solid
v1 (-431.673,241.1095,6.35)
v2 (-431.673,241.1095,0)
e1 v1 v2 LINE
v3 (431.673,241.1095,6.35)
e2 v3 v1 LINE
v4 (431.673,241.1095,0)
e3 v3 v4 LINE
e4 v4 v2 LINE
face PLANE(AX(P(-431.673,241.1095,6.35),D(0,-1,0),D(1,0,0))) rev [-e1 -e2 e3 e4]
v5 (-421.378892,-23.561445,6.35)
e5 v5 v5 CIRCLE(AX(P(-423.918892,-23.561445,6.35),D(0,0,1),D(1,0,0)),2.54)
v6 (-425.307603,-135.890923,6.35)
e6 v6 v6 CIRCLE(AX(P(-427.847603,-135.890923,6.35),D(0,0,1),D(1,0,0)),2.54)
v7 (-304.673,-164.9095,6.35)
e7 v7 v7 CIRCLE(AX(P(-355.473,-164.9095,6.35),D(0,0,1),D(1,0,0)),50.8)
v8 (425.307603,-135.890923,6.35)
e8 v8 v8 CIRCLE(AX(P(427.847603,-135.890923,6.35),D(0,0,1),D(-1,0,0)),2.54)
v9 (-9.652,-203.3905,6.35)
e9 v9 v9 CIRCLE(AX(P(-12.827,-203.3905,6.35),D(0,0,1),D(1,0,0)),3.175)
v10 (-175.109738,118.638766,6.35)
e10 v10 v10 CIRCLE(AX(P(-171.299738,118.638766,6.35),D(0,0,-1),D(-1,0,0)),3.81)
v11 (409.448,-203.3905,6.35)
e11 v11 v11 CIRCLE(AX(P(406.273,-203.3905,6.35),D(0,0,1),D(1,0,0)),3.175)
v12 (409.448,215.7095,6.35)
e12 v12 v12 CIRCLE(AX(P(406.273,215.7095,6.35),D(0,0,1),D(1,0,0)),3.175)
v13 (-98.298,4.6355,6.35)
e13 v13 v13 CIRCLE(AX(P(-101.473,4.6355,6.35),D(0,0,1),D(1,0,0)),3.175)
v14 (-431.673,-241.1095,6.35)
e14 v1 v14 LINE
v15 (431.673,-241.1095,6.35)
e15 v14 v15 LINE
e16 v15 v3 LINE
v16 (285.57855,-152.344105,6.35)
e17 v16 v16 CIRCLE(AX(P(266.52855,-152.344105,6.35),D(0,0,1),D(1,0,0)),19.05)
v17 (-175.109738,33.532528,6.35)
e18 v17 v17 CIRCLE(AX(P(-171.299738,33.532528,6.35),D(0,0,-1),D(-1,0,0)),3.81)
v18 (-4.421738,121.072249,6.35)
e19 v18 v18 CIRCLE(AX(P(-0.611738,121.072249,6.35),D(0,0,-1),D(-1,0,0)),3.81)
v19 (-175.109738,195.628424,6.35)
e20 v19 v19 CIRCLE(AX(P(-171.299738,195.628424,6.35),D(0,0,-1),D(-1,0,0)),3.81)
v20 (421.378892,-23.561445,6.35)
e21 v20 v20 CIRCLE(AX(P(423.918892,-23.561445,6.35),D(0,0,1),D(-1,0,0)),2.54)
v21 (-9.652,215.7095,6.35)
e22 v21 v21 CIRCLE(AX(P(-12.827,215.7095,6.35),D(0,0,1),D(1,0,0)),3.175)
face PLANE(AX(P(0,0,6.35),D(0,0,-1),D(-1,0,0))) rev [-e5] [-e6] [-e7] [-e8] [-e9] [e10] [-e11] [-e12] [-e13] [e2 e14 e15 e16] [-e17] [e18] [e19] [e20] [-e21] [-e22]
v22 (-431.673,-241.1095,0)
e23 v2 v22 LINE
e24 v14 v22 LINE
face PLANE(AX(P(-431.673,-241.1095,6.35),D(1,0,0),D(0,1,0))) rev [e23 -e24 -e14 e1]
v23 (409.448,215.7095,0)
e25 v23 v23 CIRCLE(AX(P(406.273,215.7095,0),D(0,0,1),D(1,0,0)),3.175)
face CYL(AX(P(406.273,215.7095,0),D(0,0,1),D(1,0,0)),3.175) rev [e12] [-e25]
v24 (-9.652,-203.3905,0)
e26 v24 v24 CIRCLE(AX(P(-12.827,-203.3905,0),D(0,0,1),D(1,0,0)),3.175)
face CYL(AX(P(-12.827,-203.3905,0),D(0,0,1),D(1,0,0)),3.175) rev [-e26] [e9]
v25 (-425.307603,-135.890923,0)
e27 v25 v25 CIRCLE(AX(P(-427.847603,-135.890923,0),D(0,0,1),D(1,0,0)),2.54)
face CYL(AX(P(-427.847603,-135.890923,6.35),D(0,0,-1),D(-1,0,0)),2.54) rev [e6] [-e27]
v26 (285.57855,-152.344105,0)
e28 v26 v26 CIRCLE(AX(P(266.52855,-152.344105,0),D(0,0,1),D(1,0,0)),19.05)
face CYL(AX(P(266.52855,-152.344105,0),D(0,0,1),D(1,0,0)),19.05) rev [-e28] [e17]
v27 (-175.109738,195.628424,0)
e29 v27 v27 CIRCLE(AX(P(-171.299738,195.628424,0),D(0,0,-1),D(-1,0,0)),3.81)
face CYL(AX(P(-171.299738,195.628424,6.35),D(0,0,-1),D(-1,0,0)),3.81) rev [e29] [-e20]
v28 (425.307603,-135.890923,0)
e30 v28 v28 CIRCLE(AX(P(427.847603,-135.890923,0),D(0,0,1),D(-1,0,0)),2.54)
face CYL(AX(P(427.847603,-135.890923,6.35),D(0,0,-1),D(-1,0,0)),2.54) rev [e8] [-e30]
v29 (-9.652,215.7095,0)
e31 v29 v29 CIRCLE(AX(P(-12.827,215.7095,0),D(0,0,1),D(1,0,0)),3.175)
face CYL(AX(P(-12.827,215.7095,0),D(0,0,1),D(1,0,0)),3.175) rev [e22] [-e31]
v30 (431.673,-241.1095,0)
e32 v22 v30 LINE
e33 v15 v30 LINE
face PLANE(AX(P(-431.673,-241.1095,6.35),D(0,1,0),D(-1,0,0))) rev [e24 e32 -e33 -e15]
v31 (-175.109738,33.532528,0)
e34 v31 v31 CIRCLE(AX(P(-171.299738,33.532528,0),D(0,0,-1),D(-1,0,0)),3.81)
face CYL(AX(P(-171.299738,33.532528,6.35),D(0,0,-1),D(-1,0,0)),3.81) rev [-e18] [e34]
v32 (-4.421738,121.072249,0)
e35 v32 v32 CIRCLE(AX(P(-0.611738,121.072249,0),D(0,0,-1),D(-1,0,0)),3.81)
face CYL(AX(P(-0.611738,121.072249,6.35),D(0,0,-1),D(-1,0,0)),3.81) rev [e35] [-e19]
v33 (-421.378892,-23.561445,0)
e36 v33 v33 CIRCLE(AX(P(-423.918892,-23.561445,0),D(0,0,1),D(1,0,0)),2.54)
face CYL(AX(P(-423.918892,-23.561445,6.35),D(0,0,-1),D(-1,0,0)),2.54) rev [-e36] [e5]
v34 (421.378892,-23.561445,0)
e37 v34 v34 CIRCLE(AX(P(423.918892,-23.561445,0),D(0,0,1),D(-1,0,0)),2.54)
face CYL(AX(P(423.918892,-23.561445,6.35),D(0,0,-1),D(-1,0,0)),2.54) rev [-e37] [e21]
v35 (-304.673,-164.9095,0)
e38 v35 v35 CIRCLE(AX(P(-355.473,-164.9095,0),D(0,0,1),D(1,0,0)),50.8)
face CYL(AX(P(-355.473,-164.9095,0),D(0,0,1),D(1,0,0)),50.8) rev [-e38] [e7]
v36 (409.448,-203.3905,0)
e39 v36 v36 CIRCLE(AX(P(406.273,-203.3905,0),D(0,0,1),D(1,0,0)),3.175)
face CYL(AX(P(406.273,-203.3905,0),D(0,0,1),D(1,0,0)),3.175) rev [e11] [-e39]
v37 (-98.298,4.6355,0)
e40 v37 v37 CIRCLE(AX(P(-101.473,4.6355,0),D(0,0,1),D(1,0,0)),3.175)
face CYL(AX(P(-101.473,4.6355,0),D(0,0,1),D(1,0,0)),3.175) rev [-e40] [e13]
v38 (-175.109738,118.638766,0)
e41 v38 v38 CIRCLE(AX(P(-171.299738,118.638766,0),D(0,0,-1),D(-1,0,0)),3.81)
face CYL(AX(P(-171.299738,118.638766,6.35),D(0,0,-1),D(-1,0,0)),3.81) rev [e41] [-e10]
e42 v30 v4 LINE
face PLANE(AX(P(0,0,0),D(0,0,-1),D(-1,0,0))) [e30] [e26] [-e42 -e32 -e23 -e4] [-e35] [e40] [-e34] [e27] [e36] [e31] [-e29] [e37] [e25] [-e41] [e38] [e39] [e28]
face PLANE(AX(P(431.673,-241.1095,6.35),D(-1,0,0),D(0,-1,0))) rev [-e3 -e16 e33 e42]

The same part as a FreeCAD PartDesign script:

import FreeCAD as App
import Part
import Sketcher
from FreeCAD import Vector
Q = App.Units.Quantity

doc = App.newDocument("Part")
body = doc.addObject("PartDesign::Body", "Body")

sketch1 = body.newObject("Sketcher::SketchObject", "Sketch")
sketch1.AttachmentSupport = (doc.getObject("XY_Plane"), [""])
sketch1.MapMode = "FlatFace"
sketch1.addGeometry(Part.LineSegment(Vector(-431.673, 241.1095, 0), Vector(-431.673, -241.1095, 0)), False)
sketch1.addGeometry(Part.LineSegment(Vector(-431.673, -241.1095, 0), Vector(431.673, -241.1095, 0)), False)
sketch1.addGeometry(Part.LineSegment(Vector(431.673, -241.1095, 0), Vector(431.673, 241.1095, 0)), False)
sketch1.addGeometry(Part.LineSegment(Vector(431.673, 241.1095, 0), Vector(-431.673, 241.1095, 0)), False)
sketch1.addGeometry(Part.Circle(Vector(-427.847603, -135.890923, 0), Vector(0, 0, 1), 2.54), False)
sketch1.addGeometry(Part.Circle(Vector(427.847603, -135.890923, 0), Vector(0, 0, 1), 2.54), False)
sketch1.addGeometry(Part.Circle(Vector(-423.918892, -23.561445, 0), Vector(0, 0, 1), 2.54), False)
sketch1.addGeometry(Part.Circle(Vector(423.918892, -23.561445, 0), Vector(0, 0, 1), 2.54), False)
sketch1.addConstraint(Sketcher.Constraint("Coincident", 0, 2, 1, 1))
sketch1.addConstraint(Sketcher.Constraint("Coincident", 1, 2, 2, 1))
sketch1.addConstraint(Sketcher.Constraint("Coincident", 2, 2, 3, 1))
sketch1.addConstraint(Sketcher.Constraint("Coincident", 3, 2, 0, 1))
sketch1.addConstraint(Sketcher.Constraint("Vertical", 0))
sketch1.addConstraint(Sketcher.Constraint("Horizontal", 1))
sketch1.addConstraint(Sketcher.Constraint("Vertical", 2))
sketch1.addConstraint(Sketcher.Constraint("Horizontal", 3))
sketch1.addConstraint(Sketcher.Constraint("Equal", 4, 5))
sketch1.addConstraint(Sketcher.Constraint("Equal", 5, 6))
sketch1.addConstraint(Sketcher.Constraint("Equal", 6, 7))
sketch1.addConstraint(Sketcher.Constraint("Symmetric", 0, 2, 2, 2, -1, 1))
sketch1.addConstraint(Sketcher.Constraint("Symmetric", 4, 3, 5, 3, -2))
sketch1.addConstraint(Sketcher.Constraint("Symmetric", 6, 3, 7, 3, -2))
sketch1.addConstraint(Sketcher.Constraint("Diameter", 4, Q("0.2 in")))
sketch1.addConstraint(Sketcher.Constraint("DistanceX", 1, 1, 1, 2, Q("33.99 in")))
sketch1.addConstraint(Sketcher.Constraint("DistanceY", 0, 2, 0, 1, Q("18.985 in")))
sketch1.addConstraint(Sketcher.Constraint("DistanceX", 4, 3, 6, 3, 3.928711))
sketch1.addConstraint(Sketcher.Constraint("DistanceY", 4, 3, 6, 3, 112.329479))
sketch1.addConstraint(Sketcher.Constraint("DistanceX", 4, 3, -1, 1, 427.847603))
sketch1.addConstraint(Sketcher.Constraint("DistanceY", 4, 3, -1, 1, 135.890923))
pad1 = body.newObject("PartDesign::Pad", "Pad")
pad1.Profile = sketch1
pad1.Length = Q("0.25 in")

sketch2 = body.newObject("Sketcher::SketchObject", "Sketch001")
sketch2.AttachmentSupport = (doc.getObject("XY_Plane"), [""])
sketch2.MapMode = "FlatFace"
sketch2.AttachmentOffset = App.Placement(Vector(0, 0, 0.25 * 25.4), App.Rotation())
sketch2.addGeometry(Part.Circle(Vector(266.52855, -152.344105, 0), Vector(0, 0, 1), 19.05), False)
sketch2.addConstraint(Sketcher.Constraint("Diameter", 0, Q("1.5 in")))
sketch2.addConstraint(Sketcher.Constraint("DistanceX", -1, 1, 0, 3, 266.52855))
sketch2.addConstraint(Sketcher.Constraint("DistanceY", 0, 3, -1, 1, 152.344105))
pocket1 = body.newObject("PartDesign::Pocket", "Pocket")
pocket1.Profile = sketch2
pocket1.Type = "ThroughAll"

sketch3 = body.newObject("Sketcher::SketchObject", "Sketch002")
sketch3.AttachmentSupport = (doc.getObject("XY_Plane"), [""])
sketch3.MapMode = "FlatFace"
sketch3.addGeometry(Part.Circle(Vector(-171.299738, 195.628424, 0), Vector(0, 0, 1), 3.81), False)
sketch3.addGeometry(Part.Circle(Vector(-171.299738, 118.638766, 0), Vector(0, 0, 1), 3.81), False)
sketch3.addGeometry(Part.Circle(Vector(-171.299738, 33.532528, 0), Vector(0, 0, 1), 3.81), False)
sketch3.addGeometry(Part.Circle(Vector(-0.611738, 121.072249, 0), Vector(0, 0, 1), 3.81), False)
sketch3.addConstraint(Sketcher.Constraint("Equal", 0, 1))
sketch3.addConstraint(Sketcher.Constraint("Equal", 1, 2))
sketch3.addConstraint(Sketcher.Constraint("Equal", 2, 3))
sketch3.addConstraint(Sketcher.Constraint("Vertical", 0, 3, 1, 3))
sketch3.addConstraint(Sketcher.Constraint("Vertical", 1, 3, 2, 3))
sketch3.addConstraint(Sketcher.Constraint("Diameter", 0, Q("0.3 in")))
sketch3.addConstraint(Sketcher.Constraint("DistanceX", 1, 3, 3, 3, Q("6.72 in")))
sketch3.addConstraint(Sketcher.Constraint("DistanceX", 0, 3, -1, 1, 171.299738))
sketch3.addConstraint(Sketcher.Constraint("DistanceY", -1, 1, 2, 3, 33.532528))
sketch3.addConstraint(Sketcher.Constraint("DistanceY", -1, 1, 3, 3, 121.072249))
sketch3.addConstraint(Sketcher.Constraint("DistanceY", 1, 3, 0, 3, 76.989658))
sketch3.addConstraint(Sketcher.Constraint("DistanceY", -1, 1, 0, 3, 195.628424))
pocket2 = body.newObject("PartDesign::Pocket", "Pocket001")
pocket2.Profile = sketch3
pocket2.Type = "ThroughAll"
pocket2.Reversed = True

sketch4 = body.newObject("Sketcher::SketchObject", "Sketch003")
sketch4.AttachmentSupport = (doc.getObject("XY_Plane"), [""])
sketch4.MapMode = "FlatFace"
sketch4.AttachmentOffset = App.Placement(Vector(0, 0, 0.25 * 25.4), App.Rotation())
sketch4.addGeometry(Part.Circle(Vector(-12.827, 215.7095, 0), Vector(0, 0, 1), 3.175), False)
sketch4.addGeometry(Part.Circle(Vector(-12.827, -203.3905, 0), Vector(0, 0, 1), 3.175), False)
sketch4.addGeometry(Part.Circle(Vector(406.273, -203.3905, 0), Vector(0, 0, 1), 3.175), False)
sketch4.addGeometry(Part.Circle(Vector(406.273, 215.7095, 0), Vector(0, 0, 1), 3.175), False)
sketch4.addConstraint(Sketcher.Constraint("Equal", 0, 1))
sketch4.addConstraint(Sketcher.Constraint("Equal", 1, 2))
sketch4.addConstraint(Sketcher.Constraint("Equal", 2, 3))
sketch4.addConstraint(Sketcher.Constraint("Horizontal", 1, 3, 2, 3))
sketch4.addConstraint(Sketcher.Constraint("Horizontal", 0, 3, 3, 3))
sketch4.addConstraint(Sketcher.Constraint("Vertical", 0, 3, 1, 3))
sketch4.addConstraint(Sketcher.Constraint("Vertical", 2, 3, 3, 3))
sketch4.addConstraint(Sketcher.Constraint("Diameter", 0, Q("0.25 in")))
sketch4.addConstraint(Sketcher.Constraint("DistanceY", 1, 3, 0, 3, Q("16.5 in")))
sketch4.addConstraint(Sketcher.Constraint("DistanceX", 1, 3, 2, 3, Q("16.5 in")))
sketch4.addConstraint(Sketcher.Constraint("DistanceX", 0, 3, -1, 1, Q("0.505 in")))
sketch4.addConstraint(Sketcher.Constraint("DistanceY", -1, 1, 0, 3, Q("8.4925 in")))
pocket3 = body.newObject("PartDesign::Pocket", "Pocket002")
pocket3.Profile = sketch4
pocket3.Type = "ThroughAll"

sketch5 = body.newObject("Sketcher::SketchObject", "Sketch004")
sketch5.AttachmentSupport = (doc.getObject("XY_Plane"), [""])
sketch5.MapMode = "FlatFace"
sketch5.AttachmentOffset = App.Placement(Vector(0, 0, 0.25 * 25.4), App.Rotation())
sketch5.addGeometry(Part.Circle(Vector(-355.473, -164.9095, 0), Vector(0, 0, 1), 50.8), False)
sketch5.addConstraint(Sketcher.Constraint("Diameter", 0, Q("4 in")))
sketch5.addConstraint(Sketcher.Constraint("DistanceX", 0, 3, -1, 1, Q("13.995 in")))
sketch5.addConstraint(Sketcher.Constraint("DistanceY", 0, 3, -1, 1, Q("6.4925 in")))
pocket4 = body.newObject("PartDesign::Pocket", "Pocket003")
pocket4.Profile = sketch5
pocket4.Type = "ThroughAll"

sketch6 = body.newObject("Sketcher::SketchObject", "Sketch005")
sketch6.AttachmentSupport = (doc.getObject("XY_Plane"), [""])
sketch6.MapMode = "FlatFace"
sketch6.AttachmentOffset = App.Placement(Vector(0, 0, 0.25 * 25.4), App.Rotation())
sketch6.addGeometry(Part.Circle(Vector(-101.473, 4.6355, 0), Vector(0, 0, 1), 3.175), False)
sketch6.addConstraint(Sketcher.Constraint("Diameter", 0, Q("0.25 in")))
sketch6.addConstraint(Sketcher.Constraint("DistanceX", 0, 3, -1, 1, Q("3.995 in")))
sketch6.addConstraint(Sketcher.Constraint("DistanceY", -1, 1, 0, 3, Q("0.1825 in")))
pocket5 = body.newObject("PartDesign::Pocket", "Pocket004")
pocket5.Profile = sketch6
pocket5.Type = "ThroughAll"

doc.recompute()
